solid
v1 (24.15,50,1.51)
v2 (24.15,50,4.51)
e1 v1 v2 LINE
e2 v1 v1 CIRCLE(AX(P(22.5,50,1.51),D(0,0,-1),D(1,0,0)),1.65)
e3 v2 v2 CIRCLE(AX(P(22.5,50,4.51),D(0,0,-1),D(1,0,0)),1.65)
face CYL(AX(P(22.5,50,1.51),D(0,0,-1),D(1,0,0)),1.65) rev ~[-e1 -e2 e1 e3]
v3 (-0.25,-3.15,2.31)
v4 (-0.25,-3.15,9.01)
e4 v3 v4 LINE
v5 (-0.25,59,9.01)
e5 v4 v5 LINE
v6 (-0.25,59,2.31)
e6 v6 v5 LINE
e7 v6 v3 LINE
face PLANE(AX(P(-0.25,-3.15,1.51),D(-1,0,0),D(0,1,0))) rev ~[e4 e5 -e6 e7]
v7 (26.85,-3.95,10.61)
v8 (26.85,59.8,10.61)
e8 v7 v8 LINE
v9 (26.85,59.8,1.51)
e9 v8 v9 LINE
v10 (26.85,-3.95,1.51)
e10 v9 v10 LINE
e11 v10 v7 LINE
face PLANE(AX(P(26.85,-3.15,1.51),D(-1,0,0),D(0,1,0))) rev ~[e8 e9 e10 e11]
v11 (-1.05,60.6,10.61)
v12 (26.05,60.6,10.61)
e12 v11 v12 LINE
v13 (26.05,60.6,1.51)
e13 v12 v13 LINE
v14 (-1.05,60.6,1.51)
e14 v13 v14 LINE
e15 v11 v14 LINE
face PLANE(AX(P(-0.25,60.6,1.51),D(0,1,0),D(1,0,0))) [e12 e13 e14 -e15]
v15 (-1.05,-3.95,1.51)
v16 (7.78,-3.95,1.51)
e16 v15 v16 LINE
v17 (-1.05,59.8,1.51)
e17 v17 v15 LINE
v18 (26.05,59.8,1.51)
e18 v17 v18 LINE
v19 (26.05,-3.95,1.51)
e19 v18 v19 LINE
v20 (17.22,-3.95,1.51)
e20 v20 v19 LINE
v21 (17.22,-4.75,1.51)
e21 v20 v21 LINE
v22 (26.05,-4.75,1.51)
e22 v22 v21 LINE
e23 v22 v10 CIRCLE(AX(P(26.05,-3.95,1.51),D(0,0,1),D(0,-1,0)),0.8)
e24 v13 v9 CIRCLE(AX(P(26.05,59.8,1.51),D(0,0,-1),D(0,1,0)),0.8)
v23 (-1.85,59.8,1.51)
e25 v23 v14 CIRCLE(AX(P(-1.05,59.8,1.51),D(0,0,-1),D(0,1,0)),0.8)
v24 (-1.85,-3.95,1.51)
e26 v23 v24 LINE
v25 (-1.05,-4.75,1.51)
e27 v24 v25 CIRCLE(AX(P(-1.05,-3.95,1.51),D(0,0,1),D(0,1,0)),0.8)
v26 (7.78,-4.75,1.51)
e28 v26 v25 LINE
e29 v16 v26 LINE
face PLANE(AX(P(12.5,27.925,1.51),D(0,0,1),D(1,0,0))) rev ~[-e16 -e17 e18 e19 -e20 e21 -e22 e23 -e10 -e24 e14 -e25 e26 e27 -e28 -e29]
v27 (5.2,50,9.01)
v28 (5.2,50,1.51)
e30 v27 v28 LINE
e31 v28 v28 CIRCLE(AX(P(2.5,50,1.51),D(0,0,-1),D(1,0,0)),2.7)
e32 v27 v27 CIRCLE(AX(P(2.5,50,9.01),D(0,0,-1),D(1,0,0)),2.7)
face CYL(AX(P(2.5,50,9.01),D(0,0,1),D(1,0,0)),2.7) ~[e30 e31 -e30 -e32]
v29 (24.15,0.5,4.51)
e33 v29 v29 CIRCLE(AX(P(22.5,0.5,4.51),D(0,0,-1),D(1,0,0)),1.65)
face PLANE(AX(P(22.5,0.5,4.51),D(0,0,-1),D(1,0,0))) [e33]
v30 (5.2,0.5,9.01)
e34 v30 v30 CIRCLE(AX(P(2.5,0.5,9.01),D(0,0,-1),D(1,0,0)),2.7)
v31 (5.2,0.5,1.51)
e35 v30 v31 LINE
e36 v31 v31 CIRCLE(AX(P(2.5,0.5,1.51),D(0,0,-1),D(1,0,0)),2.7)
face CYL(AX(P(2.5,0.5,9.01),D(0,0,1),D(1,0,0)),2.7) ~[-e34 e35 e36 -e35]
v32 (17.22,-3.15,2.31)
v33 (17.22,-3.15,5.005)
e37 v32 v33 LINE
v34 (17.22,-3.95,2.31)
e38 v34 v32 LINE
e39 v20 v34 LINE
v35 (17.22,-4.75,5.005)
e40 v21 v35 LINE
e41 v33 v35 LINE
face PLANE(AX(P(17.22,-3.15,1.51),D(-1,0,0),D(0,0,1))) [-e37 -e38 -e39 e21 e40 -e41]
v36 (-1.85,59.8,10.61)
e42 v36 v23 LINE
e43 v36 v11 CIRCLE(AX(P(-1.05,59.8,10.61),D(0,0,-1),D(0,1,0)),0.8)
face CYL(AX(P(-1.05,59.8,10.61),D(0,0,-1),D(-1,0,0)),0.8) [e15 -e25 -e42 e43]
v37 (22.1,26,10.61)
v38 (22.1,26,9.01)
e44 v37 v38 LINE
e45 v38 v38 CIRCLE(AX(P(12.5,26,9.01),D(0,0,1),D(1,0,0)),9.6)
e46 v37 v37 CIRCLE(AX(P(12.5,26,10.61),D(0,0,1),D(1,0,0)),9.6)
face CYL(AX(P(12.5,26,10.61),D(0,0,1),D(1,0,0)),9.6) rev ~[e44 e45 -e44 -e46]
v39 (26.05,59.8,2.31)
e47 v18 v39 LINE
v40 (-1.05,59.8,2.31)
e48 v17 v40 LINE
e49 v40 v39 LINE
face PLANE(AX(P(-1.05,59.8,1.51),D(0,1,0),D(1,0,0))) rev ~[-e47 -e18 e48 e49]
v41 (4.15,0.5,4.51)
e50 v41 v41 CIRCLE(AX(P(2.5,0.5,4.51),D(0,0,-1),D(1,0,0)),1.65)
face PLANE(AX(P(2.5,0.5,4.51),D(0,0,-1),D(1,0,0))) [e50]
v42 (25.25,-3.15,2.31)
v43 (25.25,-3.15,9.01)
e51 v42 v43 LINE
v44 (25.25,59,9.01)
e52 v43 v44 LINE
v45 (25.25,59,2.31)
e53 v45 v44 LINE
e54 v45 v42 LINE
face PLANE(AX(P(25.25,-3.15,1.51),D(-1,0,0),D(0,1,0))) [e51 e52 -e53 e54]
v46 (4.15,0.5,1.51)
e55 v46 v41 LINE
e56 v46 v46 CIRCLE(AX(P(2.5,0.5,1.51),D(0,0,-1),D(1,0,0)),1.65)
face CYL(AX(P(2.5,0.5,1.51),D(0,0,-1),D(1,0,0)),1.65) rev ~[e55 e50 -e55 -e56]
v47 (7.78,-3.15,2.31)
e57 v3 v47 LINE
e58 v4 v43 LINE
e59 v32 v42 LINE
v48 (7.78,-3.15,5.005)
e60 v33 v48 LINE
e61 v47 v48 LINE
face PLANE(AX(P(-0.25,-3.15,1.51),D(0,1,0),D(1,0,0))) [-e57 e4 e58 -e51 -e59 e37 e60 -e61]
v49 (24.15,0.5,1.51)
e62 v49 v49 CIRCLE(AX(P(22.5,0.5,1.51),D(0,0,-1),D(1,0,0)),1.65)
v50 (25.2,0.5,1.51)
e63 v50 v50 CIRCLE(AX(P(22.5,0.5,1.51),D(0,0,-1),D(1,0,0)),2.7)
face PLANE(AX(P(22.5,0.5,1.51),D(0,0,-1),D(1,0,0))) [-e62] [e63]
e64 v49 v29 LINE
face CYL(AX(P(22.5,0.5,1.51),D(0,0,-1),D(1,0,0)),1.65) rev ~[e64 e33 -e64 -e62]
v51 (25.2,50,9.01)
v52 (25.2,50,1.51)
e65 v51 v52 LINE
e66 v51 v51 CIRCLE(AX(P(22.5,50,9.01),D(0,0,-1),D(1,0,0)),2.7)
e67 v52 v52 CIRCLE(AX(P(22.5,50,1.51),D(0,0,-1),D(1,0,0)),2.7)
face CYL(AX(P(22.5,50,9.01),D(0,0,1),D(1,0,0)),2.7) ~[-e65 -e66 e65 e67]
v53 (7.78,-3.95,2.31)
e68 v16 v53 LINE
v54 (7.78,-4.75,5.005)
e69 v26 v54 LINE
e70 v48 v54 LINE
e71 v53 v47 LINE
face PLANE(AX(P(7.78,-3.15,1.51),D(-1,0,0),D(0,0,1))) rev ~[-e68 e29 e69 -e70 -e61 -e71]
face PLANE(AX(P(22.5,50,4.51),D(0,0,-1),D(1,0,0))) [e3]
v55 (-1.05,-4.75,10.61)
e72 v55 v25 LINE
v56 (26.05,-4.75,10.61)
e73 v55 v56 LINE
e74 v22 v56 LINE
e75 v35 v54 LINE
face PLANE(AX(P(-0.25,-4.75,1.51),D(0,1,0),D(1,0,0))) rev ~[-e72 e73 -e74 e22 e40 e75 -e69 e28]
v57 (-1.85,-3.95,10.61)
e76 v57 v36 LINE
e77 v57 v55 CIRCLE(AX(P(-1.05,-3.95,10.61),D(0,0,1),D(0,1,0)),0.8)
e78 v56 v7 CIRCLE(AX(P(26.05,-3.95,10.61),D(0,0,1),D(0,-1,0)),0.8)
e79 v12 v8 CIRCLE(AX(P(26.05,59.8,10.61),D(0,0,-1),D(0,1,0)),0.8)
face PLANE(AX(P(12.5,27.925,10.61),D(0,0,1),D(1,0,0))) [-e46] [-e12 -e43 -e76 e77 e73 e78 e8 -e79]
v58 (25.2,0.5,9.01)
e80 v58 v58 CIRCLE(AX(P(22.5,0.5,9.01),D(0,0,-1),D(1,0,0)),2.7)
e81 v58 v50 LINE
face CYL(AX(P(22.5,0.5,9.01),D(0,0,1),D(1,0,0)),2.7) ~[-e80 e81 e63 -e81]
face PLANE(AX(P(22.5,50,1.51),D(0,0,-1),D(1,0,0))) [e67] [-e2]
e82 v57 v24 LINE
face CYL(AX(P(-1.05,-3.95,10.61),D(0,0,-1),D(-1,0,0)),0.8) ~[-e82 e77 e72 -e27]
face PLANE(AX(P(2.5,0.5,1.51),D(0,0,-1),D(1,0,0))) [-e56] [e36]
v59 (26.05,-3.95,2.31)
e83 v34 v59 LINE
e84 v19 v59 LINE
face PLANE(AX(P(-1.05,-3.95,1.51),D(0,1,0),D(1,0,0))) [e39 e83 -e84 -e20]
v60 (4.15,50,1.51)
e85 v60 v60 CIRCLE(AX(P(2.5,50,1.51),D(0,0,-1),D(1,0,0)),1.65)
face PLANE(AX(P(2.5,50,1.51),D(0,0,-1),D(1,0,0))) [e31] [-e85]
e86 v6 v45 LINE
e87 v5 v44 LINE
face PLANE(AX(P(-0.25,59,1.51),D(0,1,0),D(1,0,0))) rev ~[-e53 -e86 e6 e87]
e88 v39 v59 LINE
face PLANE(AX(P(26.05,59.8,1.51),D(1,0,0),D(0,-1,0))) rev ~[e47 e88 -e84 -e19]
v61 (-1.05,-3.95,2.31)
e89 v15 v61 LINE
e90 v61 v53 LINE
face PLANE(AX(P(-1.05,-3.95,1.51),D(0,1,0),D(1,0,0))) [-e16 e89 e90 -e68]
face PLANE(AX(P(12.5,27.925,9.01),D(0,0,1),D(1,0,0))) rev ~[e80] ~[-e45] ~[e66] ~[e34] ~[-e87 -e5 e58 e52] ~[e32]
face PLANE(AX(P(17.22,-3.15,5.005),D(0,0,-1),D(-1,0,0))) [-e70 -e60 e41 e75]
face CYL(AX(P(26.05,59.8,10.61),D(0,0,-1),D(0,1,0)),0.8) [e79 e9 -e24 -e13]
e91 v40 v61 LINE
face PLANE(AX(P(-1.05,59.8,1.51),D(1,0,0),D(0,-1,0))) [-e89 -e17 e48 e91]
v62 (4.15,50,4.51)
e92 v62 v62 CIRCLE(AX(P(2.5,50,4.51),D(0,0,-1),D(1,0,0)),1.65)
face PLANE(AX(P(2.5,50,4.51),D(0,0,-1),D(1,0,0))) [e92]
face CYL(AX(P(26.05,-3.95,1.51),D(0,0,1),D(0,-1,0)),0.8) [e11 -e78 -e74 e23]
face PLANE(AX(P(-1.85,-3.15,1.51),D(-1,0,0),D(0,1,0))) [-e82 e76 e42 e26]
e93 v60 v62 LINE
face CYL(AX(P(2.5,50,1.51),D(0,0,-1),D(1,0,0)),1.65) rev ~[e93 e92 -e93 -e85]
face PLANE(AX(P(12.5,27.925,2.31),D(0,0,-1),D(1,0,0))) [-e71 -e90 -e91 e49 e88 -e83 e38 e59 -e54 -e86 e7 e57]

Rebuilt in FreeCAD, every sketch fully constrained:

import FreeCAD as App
import Part
import Sketcher


def edges_at(feature, points):
    """Names of the edges that pass closest to the given points."""
    edges = feature.Shape.Edges
    near = lambda p: min(range(len(edges)), key=lambda i: edges[i].distToShape(Part.Vertex(*p))[0])
    return sorted({f"Edge{near(p) + 1}" for p in points})


def faces_at(feature, points):
    """Names of the faces that lie closest to the given points."""
    faces = feature.Shape.Faces
    near = lambda p: min(range(len(faces)), key=lambda i: faces[i].distToShape(Part.Vertex(*p))[0])
    return sorted({f"Face{near(p) + 1}" for p in points})


def add_polygon(sketch, points):
    """Adds a closed chain of lines whose ends are joined by coincident constraints."""
    first, n = sketch.GeometryCount, len(points)
    for a, b in zip(points, points[1:] + points[:1]):
        sketch.addGeometry(Part.LineSegment(App.Vector(*a, 0), App.Vector(*b, 0)), False)
    for i in range(n):
        sketch.addConstraint(Sketcher.Constraint("Coincident", first + i, 2, first + (i + 1) % n, 1))

doc = App.newDocument("Part")
body = doc.addObject("PartDesign::Body", "Body")

# Sketch on XY plane
sketch1 = doc.addObject("Sketcher::SketchObject", "Sketch")
body.addObject(sketch1)
sketch1.AttachmentSupport = (doc.XY_Plane, [""])
sketch1.MapMode = "FlatFace"
sketch1.AttachmentOffset = App.Placement(App.Vector(0, 0, 1.51), App.Rotation())
add_polygon(sketch1, [(0, 59), (0, -3), (25, -3), (25, 59)])  # lines 0-3
sketch1.addConstraint([
    Sketcher.Constraint("Vertical", 0),
    Sketcher.Constraint("Horizontal", 1),
    Sketcher.Constraint("Vertical", 2),
    Sketcher.Constraint("Horizontal", 3),
    Sketcher.Constraint("DistanceX", 1, 1, 1, 2, 25.5),
    Sketcher.Constraint("DistanceY", -1, 1, 2, 2, 59.0),
    Sketcher.Constraint("DistanceY", 0, 2, 0, 1, 62.15),
    Sketcher.Constraint("DistanceX", 0, 2, -1, 1, 0.25),
])
pad1 = doc.addObject("PartDesign::Pad", "Pad")
body.addObject(pad1)
pad1.Profile = sketch1
pad1.Length = 7.5
doc.recompute()

thickness = doc.addObject("PartDesign::Thickness", "Thickness")
body.addObject(thickness)
thickness.Base = (pad1, faces_at(pad1, [(12.5, 27.925, 1.51)]))
thickness.Value = 1.6
thickness.Reversed = False
thickness.Join = "Intersection"

# Sketch on XY plane
sketch2 = doc.addObject("Sketcher::SketchObject", "Sketch001")
body.addObject(sketch2)
sketch2.AttachmentSupport = (doc.XY_Plane, [""])
sketch2.MapMode = "FlatFace"
sketch2.AttachmentOffset = App.Placement(App.Vector(0, 0, 10.61), App.Rotation())
sketch2.addGeometry(Part.Circle(App.Vector(12, 26, 0), App.Vector(0, 0, 1), 10), False)
sketch2.addConstraint([
    Sketcher.Constraint("Diameter", 0, 19.2),
    Sketcher.Constraint("DistanceY", -1, 1, 0, 3, 26.0),
    Sketcher.Constraint("DistanceX", -1, 1, 0, 3, 12.5),
])
pocket1 = doc.addObject("PartDesign::Pocket", "Pocket")
body.addObject(pocket1)
pocket1.Profile = sketch2
pocket1.Length = 5

# Sketch on XY plane
sketch3 = doc.addObject("Sketcher::SketchObject", "Sketch002")
body.addObject(sketch3)
sketch3.AttachmentSupport = (doc.XY_Plane, [""])
sketch3.MapMode = "FlatFace"
sketch3.AttachmentOffset = App.Placement(App.Vector(0, 0, 1.51), App.Rotation())
add_polygon(sketch3, [(-1, -4), (-1, 60), (26, 60), (26, -4)])  # lines 0-3
add_polygon(sketch3, [(25, 59), (0, 59), (0, -3), (25, -3)])  # lines 4-7
sketch3.addConstraint([
    Sketcher.Constraint("Vertical", 0),
    Sketcher.Constraint("Horizontal", 1),
    Sketcher.Constraint("Vertical", 2),
    Sketcher.Constraint("Horizontal", 3),
    Sketcher.Constraint("Horizontal", 4),
    Sketcher.Constraint("Vertical", 5),
    Sketcher.Constraint("Horizontal", 6),
    Sketcher.Constraint("Vertical", 7),
    Sketcher.Constraint("DistanceX", 1, 1, 1, 2, 27.1),
    Sketcher.Constraint("DistanceX", 4, 2, 4, 1, 25.5),
    Sketcher.Constraint("DistanceY", -1, 1, 4, 2, 59.0),
    Sketcher.Constraint("DistanceY", 0, 1, 0, 2, 63.75),
    Sketcher.Constraint("DistanceY", 5, 2, 5, 1, 62.15),
    Sketcher.Constraint("DistanceY", -1, 1, 0, 2, 59.8),
    Sketcher.Constraint("DistanceX", 0, 2, 4, 2, 0.8),
    Sketcher.Constraint("DistanceX", 0, 2, -1, 1, 1.05),
])
pocket2 = doc.addObject("PartDesign::Pocket", "Pocket001")
body.addObject(pocket2)
pocket2.Profile = sketch3
pocket2.Length = 0.8
pocket2.Reversed = True
doc.recompute()

fillet = doc.addObject("PartDesign::Fillet", "Fillet")
body.addObject(fillet)
fillet.Base = (pocket2, edges_at(pocket2, [
    (26.85, -4.75, 6.06),
    (26.85, 60.6, 6.06),
    (-1.85, 60.6, 6.06),
    (-1.85, -4.75, 6.06),
]))
fillet.Radius = 0.8

# Sketch on XY plane
sketch4 = doc.addObject("Sketcher::SketchObject", "Sketch003")
body.addObject(sketch4)
sketch4.AttachmentSupport = (doc.XY_Plane, [""])
sketch4.MapMode = "FlatFace"
sketch4.AttachmentOffset = App.Placement(App.Vector(0, 0, 9.01), App.Rotation())
sketch4.addGeometry([
    Part.Circle(App.Vector(2.5, 0.5, 0), App.Vector(0, 0, 1), 2.7),
    Part.Circle(App.Vector(22.5, 0.5, 0), App.Vector(0, 0, 1), 2.7),
    Part.Circle(App.Vector(2.5, 50, 0), App.Vector(0, 0, 1), 2.7),
    Part.Circle(App.Vector(22.5, 50, 0), App.Vector(0, 0, 1), 2.7),
], False)
sketch4.addConstraint([
    Sketcher.Constraint("Equal", 0, 1),
    Sketcher.Constraint("Equal", 1, 2),
    Sketcher.Constraint("Equal", 2, 3),
    Sketcher.Constraint("Horizontal", 0, 3, 1, 3),
    Sketcher.Constraint("Horizontal", 2, 3, 3, 3),
    Sketcher.Constraint("Vertical", 0, 3, 2, 3),
    Sketcher.Constraint("Vertical", 1, 3, 3, 3),
    Sketcher.Constraint("Diameter", 0, 5.4),
    Sketcher.Constraint("DistanceY", -1, 1, 2, 3, 50.0),
    Sketcher.Constraint("DistanceX", 0, 3, 1, 3, 20.0),
    Sketcher.Constraint("DistanceX", -1, 1, 0, 3, 2.5),
    Sketcher.Constraint("DistanceY", -1, 1, 0, 3, 0.5),
])
pad2 = doc.addObject("PartDesign::Pad", "Pad001")
body.addObject(pad2)
pad2.Profile = sketch4
pad2.Length = 7.5
pad2.Reversed = True

# Sketch on XY plane
sketch5 = doc.addObject("Sketcher::SketchObject", "Sketch004")
body.addObject(sketch5)
sketch5.AttachmentSupport = (doc.XY_Plane, [""])
sketch5.MapMode = "FlatFace"
sketch5.AttachmentOffset = App.Placement(App.Vector(0, 0, 1.51), App.Rotation())
sketch5.addGeometry([
    Part.Circle(App.Vector(2.5, 0.5, 0), App.Vector(0, 0, 1), 1.6),
    Part.Circle(App.Vector(22.5, 0.5, 0), App.Vector(0, 0, 1), 1.6),
    Part.Circle(App.Vector(2.5, 50, 0), App.Vector(0, 0, 1), 1.6),
    Part.Circle(App.Vector(22.5, 50, 0), App.Vector(0, 0, 1), 1.6),
], False)
sketch5.addConstraint([
    Sketcher.Constraint("Equal", 0, 1),
    Sketcher.Constraint("Equal", 1, 2),
    Sketcher.Constraint("Equal", 2, 3),
    Sketcher.Constraint("Horizontal", 0, 3, 1, 3),
    Sketcher.Constraint("Horizontal", 2, 3, 3, 3),
    Sketcher.Constraint("Vertical", 0, 3, 2, 3),
    Sketcher.Constraint("Vertical", 1, 3, 3, 3),
    Sketcher.Constraint("Diameter", 0, 3.3),
    Sketcher.Constraint("DistanceY", -1, 1, 2, 3, 50.0),
    Sketcher.Constraint("DistanceX", 0, 3, 1, 3, 20.0),
    Sketcher.Constraint("DistanceX", -1, 1, 0, 3, 2.5),
    Sketcher.Constraint("DistanceY", -1, 1, 0, 3, 0.5),
])
pocket3 = doc.addObject("PartDesign::Pocket", "Pocket002")
body.addObject(pocket3)
pocket3.Profile = sketch5
pocket3.Length = 3
pocket3.Reversed = True

# Sketch on XZ plane
sketch6 = doc.addObject("Sketcher::SketchObject", "Sketch005")
body.addObject(sketch6)
sketch6.AttachmentSupport = (doc.XZ_Plane, [""])
sketch6.MapMode = "FlatFace"
sketch6.AttachmentOffset = App.Placement(App.Vector(0, 0, 3.15), App.Rotation())
add_polygon(sketch6, [(17.2, 5), (17.2, 1.5), (7.8, 1.5), (7.8, 5)])  # lines 0-3
sketch6.addConstraint([
    Sketcher.Constraint("Vertical", 0),
    Sketcher.Constraint("Horizontal", 1),
    Sketcher.Constraint("Vertical", 2),
    Sketcher.Constraint("Horizontal", 3),
    Sketcher.Constraint("DistanceX", 1, 2, 1, 1, 9.44),
    Sketcher.Constraint("DistanceY", 0, 2, 0, 1, 3.495),
    Sketcher.Constraint("DistanceX", -1, 1, 0, 2, 17.22),
    Sketcher.Constraint("DistanceY", -1, 1, 0, 2, 1.51),
])
pocket4 = doc.addObject("PartDesign::Pocket", "Pocket003")
body.addObject(pocket4)
pocket4.Profile = sketch6
pocket4.Length = 5
pocket4.Reversed = True

doc.recompute()
